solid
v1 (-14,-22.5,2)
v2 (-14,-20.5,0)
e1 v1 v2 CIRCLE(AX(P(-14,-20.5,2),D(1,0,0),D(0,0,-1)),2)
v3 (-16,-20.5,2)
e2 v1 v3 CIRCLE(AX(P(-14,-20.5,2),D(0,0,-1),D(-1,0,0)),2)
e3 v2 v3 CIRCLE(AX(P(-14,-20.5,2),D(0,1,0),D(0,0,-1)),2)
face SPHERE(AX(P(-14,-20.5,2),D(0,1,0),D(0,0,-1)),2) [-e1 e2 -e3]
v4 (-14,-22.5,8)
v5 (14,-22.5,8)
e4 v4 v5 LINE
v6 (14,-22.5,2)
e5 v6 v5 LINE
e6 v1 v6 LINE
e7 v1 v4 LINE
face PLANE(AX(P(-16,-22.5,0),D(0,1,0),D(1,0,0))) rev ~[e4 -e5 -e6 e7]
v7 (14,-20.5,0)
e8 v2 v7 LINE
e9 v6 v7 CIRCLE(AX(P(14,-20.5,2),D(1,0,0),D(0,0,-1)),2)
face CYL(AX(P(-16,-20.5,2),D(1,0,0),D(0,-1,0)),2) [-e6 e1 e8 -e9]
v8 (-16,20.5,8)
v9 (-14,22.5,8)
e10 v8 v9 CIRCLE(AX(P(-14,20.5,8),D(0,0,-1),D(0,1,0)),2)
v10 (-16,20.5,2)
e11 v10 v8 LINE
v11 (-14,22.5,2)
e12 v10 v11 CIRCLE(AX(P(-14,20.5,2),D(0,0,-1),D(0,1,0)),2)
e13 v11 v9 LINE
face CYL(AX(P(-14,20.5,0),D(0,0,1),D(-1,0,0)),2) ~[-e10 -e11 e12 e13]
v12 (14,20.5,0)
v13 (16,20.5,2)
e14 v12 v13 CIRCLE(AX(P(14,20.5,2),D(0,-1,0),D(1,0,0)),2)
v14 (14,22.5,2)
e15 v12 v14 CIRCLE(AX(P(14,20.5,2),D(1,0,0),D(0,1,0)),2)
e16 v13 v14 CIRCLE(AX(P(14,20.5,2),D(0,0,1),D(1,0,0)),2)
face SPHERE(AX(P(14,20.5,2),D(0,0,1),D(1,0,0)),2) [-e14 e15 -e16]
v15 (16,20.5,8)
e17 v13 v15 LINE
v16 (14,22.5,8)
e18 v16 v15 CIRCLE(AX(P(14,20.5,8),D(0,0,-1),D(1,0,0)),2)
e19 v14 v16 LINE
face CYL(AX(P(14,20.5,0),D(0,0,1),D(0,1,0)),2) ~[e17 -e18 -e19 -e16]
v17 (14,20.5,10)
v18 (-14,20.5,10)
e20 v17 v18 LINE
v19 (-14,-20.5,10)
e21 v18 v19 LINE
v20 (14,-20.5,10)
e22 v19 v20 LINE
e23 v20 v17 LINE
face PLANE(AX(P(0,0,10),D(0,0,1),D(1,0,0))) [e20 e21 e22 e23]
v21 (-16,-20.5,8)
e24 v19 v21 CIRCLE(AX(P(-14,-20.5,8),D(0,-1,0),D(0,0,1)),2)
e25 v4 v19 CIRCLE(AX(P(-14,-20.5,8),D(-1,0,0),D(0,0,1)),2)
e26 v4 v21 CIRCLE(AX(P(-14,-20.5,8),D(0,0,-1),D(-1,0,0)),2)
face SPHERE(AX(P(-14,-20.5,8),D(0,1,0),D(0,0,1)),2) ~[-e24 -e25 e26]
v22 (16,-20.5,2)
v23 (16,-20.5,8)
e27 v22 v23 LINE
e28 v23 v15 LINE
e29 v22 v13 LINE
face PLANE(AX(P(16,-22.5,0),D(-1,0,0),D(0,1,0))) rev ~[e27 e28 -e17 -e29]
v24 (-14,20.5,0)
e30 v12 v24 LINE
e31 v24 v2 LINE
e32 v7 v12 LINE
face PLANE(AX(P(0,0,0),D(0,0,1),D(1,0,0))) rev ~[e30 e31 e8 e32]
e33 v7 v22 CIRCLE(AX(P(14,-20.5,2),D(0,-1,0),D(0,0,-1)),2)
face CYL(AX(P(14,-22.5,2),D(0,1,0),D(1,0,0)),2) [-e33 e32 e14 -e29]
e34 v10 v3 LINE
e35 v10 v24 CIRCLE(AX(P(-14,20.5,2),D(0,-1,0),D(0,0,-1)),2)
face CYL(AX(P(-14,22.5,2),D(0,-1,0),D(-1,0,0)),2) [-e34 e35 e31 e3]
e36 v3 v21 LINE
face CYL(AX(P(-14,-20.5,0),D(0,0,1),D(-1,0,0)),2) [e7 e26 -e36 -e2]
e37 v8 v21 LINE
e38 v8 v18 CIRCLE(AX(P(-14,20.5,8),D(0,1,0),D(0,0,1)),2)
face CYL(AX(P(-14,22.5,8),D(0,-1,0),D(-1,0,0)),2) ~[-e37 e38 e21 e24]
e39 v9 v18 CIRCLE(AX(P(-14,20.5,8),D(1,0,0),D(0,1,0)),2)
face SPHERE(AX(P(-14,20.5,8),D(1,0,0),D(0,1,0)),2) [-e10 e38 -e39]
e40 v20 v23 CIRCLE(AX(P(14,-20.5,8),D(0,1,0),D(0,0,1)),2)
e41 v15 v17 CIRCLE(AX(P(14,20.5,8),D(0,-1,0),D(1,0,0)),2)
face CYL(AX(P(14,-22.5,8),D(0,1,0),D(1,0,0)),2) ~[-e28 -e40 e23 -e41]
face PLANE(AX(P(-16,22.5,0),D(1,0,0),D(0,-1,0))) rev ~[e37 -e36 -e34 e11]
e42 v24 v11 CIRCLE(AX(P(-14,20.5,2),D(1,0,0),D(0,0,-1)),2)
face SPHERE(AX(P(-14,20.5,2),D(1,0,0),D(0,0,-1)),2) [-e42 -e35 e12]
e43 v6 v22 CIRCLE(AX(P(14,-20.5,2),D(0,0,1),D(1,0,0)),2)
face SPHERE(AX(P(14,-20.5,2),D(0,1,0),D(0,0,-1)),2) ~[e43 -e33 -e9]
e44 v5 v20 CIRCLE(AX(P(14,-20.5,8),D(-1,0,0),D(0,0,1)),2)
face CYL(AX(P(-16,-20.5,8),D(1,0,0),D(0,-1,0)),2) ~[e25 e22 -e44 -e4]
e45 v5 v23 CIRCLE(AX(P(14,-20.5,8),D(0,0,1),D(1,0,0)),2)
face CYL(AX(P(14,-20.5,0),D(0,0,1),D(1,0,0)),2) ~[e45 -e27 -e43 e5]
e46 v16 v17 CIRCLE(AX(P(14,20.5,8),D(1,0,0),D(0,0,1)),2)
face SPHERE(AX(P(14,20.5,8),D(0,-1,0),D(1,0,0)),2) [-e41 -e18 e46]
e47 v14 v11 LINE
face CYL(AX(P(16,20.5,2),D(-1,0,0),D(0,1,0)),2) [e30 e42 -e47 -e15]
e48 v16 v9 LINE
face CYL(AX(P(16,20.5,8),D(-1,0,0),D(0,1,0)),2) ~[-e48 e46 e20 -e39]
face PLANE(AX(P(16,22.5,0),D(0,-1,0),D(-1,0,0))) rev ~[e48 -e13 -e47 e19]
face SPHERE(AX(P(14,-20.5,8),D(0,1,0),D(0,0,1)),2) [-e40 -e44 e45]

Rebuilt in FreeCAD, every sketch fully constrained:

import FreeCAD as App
import Part
import Sketcher

doc = App.newDocument("Part")
body = doc.addObject("PartDesign::Body", "Body")

# Sketch on XY plane
sketch1 = body.newObject("Sketcher::SketchObject", "Sketch")
sketch1.AttachmentSupport = (doc.getObject("XY_Plane"), [""])
sketch1.MapMode = "FlatFace"
sketch1.addGeometry(Part.LineSegment(App.Vector(-16, 22, 0), App.Vector(-16, -22, 0)), False)
sketch1.addGeometry(Part.LineSegment(App.Vector(-16, -22, 0), App.Vector(16, -22, 0)), False)
sketch1.addGeometry(Part.LineSegment(App.Vector(16, -22, 0), App.Vector(16, 22, 0)), False)
sketch1.addGeometry(Part.LineSegment(App.Vector(16, 22, 0), App.Vector(-16, 22, 0)), False)
sketch1.addConstraint(Sketcher.Constraint("Coincident", 0, 2, 1, 1))
sketch1.addConstraint(Sketcher.Constraint("Coincident", 1, 2, 2, 1))
sketch1.addConstraint(Sketcher.Constraint("Coincident", 2, 2, 3, 1))
sketch1.addConstraint(Sketcher.Constraint("Coincident", 3, 2, 0, 1))
sketch1.addConstraint(Sketcher.Constraint("Vertical", 0))
sketch1.addConstraint(Sketcher.Constraint("Horizontal", 1))
sketch1.addConstraint(Sketcher.Constraint("Vertical", 2))
sketch1.addConstraint(Sketcher.Constraint("Horizontal", 3))
sketch1.addConstraint(Sketcher.Constraint("Symmetric", 0, 2, 2, 2, -1, 1))
sketch1.addConstraint(Sketcher.Constraint("DistanceX", 1, 1, 1, 2, 32.0))
sketch1.addConstraint(Sketcher.Constraint("DistanceY", 0, 2, 0, 1, 45.0))
pad1 = body.newObject("PartDesign::Pad", "Pad")
pad1.Profile = sketch1
pad1.Length = 10
doc.recompute()

fillet = body.newObject("PartDesign::Fillet", "Fillet")
fillet.Base = (pad1, ["Edge1"])
fillet.UseAllEdges = True
fillet.Radius = 2

doc.recompute()
